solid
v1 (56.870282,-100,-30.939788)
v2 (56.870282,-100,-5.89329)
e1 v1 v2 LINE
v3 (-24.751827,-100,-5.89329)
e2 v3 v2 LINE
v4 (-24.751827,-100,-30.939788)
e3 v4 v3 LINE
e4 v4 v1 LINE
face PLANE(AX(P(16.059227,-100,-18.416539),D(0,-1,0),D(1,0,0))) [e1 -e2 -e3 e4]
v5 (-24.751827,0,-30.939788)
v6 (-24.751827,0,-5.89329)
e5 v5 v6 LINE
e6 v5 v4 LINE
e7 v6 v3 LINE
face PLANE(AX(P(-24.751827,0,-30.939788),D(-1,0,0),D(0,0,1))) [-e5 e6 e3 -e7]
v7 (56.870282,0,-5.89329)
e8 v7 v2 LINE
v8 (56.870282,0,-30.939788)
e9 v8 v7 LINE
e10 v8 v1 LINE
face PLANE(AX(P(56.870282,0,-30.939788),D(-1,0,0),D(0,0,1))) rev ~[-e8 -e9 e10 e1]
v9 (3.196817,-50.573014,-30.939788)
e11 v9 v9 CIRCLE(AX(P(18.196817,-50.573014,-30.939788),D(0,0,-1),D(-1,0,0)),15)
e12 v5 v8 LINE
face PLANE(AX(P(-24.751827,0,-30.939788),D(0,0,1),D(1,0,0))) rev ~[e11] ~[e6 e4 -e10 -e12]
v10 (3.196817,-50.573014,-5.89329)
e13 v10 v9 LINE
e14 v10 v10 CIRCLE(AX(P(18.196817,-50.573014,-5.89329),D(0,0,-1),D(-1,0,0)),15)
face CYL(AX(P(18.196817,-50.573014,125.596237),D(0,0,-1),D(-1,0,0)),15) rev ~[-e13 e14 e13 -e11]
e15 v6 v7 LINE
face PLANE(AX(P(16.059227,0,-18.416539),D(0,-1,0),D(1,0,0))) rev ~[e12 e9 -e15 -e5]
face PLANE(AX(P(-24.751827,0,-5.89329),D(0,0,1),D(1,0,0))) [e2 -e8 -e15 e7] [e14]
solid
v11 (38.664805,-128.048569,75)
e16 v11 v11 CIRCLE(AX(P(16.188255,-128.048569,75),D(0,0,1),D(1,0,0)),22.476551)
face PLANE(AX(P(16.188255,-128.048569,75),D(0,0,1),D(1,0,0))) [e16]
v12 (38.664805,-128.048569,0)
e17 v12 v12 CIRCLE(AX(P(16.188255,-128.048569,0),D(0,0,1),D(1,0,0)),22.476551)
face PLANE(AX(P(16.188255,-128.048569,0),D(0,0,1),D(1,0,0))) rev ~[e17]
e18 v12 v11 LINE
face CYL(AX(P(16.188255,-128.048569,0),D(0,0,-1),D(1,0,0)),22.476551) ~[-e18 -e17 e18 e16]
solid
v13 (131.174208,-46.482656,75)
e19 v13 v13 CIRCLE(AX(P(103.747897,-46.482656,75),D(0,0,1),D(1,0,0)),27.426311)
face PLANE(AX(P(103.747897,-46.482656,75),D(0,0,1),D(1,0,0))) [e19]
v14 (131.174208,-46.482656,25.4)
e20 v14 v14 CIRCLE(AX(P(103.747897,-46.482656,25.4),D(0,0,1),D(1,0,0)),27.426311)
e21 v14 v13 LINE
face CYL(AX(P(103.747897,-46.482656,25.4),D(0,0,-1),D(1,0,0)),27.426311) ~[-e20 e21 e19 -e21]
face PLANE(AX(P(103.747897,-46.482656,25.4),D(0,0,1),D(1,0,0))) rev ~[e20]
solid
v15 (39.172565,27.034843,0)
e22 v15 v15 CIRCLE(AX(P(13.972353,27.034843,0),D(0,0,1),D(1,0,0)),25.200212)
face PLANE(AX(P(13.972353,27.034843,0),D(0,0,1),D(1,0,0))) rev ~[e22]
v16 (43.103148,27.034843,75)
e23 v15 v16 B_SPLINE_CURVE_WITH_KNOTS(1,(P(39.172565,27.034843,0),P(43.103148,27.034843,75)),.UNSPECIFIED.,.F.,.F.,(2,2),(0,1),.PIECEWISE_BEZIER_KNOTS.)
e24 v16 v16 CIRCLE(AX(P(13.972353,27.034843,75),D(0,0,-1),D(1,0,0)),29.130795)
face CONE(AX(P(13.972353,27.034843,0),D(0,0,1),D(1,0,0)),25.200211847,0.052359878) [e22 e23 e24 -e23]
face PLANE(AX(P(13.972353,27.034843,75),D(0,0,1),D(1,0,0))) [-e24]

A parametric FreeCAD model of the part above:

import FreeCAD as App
import Part
import Sketcher
from FreeCAD import Vector
Q = App.Units.Quantity


def add_polygon(sketch, points):
    """Adds a closed chain of lines whose ends are joined by coincident constraints."""
    first, n = sketch.GeometryCount, len(points)
    for a, b in zip(points, points[1:] + points[:1]):
        sketch.addGeometry(Part.LineSegment(App.Vector(*a, 0), App.Vector(*b, 0)), False)
    for i in range(n):
        sketch.addConstraint(Sketcher.Constraint("Coincident", first + i, 2, first + (i + 1) % n, 1))

doc = App.newDocument("Part")
body = doc.addObject("PartDesign::Body", "Body")

# Sketch on XZ plane
sketch1 = body.newObject("Sketcher::SketchObject", "Sketch")
sketch1.AttachmentSupport = (doc.getObject("XZ_Plane"), [""])
sketch1.MapMode = "FlatFace"
add_polygon(sketch1, [(-25, -6), (-25, -31), (57, -31), (57, -6)])  # lines 0-3
sketch1.addConstraint([
    Sketcher.Constraint("Vertical", 0),
    Sketcher.Constraint("Horizontal", 1),
    Sketcher.Constraint("Vertical", 2),
    Sketcher.Constraint("Horizontal", 3),
    Sketcher.Constraint("DistanceX", 1, 1, 1, 2, Q("81.622109 mm")),
    Sketcher.Constraint("DistanceY", 0, 2, 0, 1, Q("25.046498 mm")),
    Sketcher.Constraint("DistanceX", -1, 1, 1, 2, Q("56.870282 mm")),
    Sketcher.Constraint("DistanceY", 2, 2, -1, 1, Q("5.89329 mm")),
])
pad1 = body.newObject("PartDesign::Pad", "Pad")
pad1.Profile = sketch1
pad1.Length = 100

# Sketch on XY plane
sketch2 = body.newObject("Sketcher::SketchObject", "Sketch001")
sketch2.AttachmentSupport = (doc.getObject("XY_Plane"), [""])
sketch2.MapMode = "FlatFace"
sketch2.AttachmentOffset = App.Placement(Vector(0, 0, -5.89329), App.Rotation())
sketch2.addGeometry(Part.Circle(Vector(18, -51, 0), Vector(0, 0, 1), 15), False)
sketch2.addConstraint([
    Sketcher.Constraint("Diameter", 0, Q("30 mm")),
    Sketcher.Constraint("DistanceX", -1, 1, 0, 3, Q("18.196817 mm")),
    Sketcher.Constraint("DistanceY", 0, 3, -1, 1, Q("50.573014 mm")),
])
doc.recompute()
hole = body.newObject("PartDesign::Hole", "Hole")
hole.Profile = sketch2
hole.ThreadType = "None"
hole.Diameter = 30
hole.DepthType = "ThroughAll"
body2 = doc.addObject("PartDesign::Body", "Body001")

# Sketch on XY plane
sketch3 = body2.newObject("Sketcher::SketchObject", "Sketch002")
sketch3.AttachmentSupport = (doc.getObject("XY_Plane001"), [""])
sketch3.MapMode = "FlatFace"
sketch3.addGeometry(Part.Circle(Vector(14, 27, 0), Vector(0, 0, 1), 25), False)
sketch3.addConstraint([
    Sketcher.Constraint("Diameter", 0, Q("50.400424 mm")),
    Sketcher.Constraint("DistanceX", -1, 1, 0, 3, Q("13.972353 mm")),
    Sketcher.Constraint("DistanceY", -1, 1, 0, 3, Q("27.034843 mm")),
])
pad2 = body2.newObject("PartDesign::Pad", "Pad001")
pad2.Profile = sketch3
pad2.Length = 75
pad2.TaperAngle = 3
body3 = doc.addObject("PartDesign::Body", "Body002")

# Sketch on XY plane
sketch4 = body3.newObject("Sketcher::SketchObject", "Sketch003")
sketch4.AttachmentSupport = (doc.getObject("XY_Plane002"), [""])
sketch4.MapMode = "FlatFace"
sketch4.addGeometry(Part.Circle(Vector(16, -128, 0), Vector(0, 0, 1), 22), False)
sketch4.addConstraint([
    Sketcher.Constraint("Diameter", 0, Q("44.953102 mm")),
    Sketcher.Constraint("DistanceY", 0, 3, -1, 1, Q("128.048569 mm")),
    Sketcher.Constraint("DistanceX", -1, 1, 0, 3, Q("16.188255 mm")),
])
pad3 = body3.newObject("PartDesign::Pad", "Pad002")
pad3.Profile = sketch4
pad3.Length = 75
body4 = doc.addObject("PartDesign::Body", "Body003")

# Sketch on XY plane
sketch5 = body4.newObject("Sketcher::SketchObject", "Sketch004")
sketch5.AttachmentSupport = (doc.getObject("XY_Plane003"), [""])
sketch5.MapMode = "FlatFace"
sketch5.AttachmentOffset = App.Placement(Vector(0, 0, 25.4), App.Rotation())
sketch5.addGeometry(Part.Circle(Vector(104, -46, 0), Vector(0, 0, 1), 27), False)
sketch5.addConstraint([
    Sketcher.Constraint("Diameter", 0, Q("54.852622 mm")),
    Sketcher.Constraint("DistanceX", -1, 1, 0, 3, Q("103.747897 mm")),
    Sketcher.Constraint("DistanceY", 0, 3, -1, 1, Q("46.482656 mm")),
])
pad4 = body4.newObject("PartDesign::Pad", "Pad003")
pad4.Profile = sketch5
pad4.Length = 49.6

doc.recompute()
